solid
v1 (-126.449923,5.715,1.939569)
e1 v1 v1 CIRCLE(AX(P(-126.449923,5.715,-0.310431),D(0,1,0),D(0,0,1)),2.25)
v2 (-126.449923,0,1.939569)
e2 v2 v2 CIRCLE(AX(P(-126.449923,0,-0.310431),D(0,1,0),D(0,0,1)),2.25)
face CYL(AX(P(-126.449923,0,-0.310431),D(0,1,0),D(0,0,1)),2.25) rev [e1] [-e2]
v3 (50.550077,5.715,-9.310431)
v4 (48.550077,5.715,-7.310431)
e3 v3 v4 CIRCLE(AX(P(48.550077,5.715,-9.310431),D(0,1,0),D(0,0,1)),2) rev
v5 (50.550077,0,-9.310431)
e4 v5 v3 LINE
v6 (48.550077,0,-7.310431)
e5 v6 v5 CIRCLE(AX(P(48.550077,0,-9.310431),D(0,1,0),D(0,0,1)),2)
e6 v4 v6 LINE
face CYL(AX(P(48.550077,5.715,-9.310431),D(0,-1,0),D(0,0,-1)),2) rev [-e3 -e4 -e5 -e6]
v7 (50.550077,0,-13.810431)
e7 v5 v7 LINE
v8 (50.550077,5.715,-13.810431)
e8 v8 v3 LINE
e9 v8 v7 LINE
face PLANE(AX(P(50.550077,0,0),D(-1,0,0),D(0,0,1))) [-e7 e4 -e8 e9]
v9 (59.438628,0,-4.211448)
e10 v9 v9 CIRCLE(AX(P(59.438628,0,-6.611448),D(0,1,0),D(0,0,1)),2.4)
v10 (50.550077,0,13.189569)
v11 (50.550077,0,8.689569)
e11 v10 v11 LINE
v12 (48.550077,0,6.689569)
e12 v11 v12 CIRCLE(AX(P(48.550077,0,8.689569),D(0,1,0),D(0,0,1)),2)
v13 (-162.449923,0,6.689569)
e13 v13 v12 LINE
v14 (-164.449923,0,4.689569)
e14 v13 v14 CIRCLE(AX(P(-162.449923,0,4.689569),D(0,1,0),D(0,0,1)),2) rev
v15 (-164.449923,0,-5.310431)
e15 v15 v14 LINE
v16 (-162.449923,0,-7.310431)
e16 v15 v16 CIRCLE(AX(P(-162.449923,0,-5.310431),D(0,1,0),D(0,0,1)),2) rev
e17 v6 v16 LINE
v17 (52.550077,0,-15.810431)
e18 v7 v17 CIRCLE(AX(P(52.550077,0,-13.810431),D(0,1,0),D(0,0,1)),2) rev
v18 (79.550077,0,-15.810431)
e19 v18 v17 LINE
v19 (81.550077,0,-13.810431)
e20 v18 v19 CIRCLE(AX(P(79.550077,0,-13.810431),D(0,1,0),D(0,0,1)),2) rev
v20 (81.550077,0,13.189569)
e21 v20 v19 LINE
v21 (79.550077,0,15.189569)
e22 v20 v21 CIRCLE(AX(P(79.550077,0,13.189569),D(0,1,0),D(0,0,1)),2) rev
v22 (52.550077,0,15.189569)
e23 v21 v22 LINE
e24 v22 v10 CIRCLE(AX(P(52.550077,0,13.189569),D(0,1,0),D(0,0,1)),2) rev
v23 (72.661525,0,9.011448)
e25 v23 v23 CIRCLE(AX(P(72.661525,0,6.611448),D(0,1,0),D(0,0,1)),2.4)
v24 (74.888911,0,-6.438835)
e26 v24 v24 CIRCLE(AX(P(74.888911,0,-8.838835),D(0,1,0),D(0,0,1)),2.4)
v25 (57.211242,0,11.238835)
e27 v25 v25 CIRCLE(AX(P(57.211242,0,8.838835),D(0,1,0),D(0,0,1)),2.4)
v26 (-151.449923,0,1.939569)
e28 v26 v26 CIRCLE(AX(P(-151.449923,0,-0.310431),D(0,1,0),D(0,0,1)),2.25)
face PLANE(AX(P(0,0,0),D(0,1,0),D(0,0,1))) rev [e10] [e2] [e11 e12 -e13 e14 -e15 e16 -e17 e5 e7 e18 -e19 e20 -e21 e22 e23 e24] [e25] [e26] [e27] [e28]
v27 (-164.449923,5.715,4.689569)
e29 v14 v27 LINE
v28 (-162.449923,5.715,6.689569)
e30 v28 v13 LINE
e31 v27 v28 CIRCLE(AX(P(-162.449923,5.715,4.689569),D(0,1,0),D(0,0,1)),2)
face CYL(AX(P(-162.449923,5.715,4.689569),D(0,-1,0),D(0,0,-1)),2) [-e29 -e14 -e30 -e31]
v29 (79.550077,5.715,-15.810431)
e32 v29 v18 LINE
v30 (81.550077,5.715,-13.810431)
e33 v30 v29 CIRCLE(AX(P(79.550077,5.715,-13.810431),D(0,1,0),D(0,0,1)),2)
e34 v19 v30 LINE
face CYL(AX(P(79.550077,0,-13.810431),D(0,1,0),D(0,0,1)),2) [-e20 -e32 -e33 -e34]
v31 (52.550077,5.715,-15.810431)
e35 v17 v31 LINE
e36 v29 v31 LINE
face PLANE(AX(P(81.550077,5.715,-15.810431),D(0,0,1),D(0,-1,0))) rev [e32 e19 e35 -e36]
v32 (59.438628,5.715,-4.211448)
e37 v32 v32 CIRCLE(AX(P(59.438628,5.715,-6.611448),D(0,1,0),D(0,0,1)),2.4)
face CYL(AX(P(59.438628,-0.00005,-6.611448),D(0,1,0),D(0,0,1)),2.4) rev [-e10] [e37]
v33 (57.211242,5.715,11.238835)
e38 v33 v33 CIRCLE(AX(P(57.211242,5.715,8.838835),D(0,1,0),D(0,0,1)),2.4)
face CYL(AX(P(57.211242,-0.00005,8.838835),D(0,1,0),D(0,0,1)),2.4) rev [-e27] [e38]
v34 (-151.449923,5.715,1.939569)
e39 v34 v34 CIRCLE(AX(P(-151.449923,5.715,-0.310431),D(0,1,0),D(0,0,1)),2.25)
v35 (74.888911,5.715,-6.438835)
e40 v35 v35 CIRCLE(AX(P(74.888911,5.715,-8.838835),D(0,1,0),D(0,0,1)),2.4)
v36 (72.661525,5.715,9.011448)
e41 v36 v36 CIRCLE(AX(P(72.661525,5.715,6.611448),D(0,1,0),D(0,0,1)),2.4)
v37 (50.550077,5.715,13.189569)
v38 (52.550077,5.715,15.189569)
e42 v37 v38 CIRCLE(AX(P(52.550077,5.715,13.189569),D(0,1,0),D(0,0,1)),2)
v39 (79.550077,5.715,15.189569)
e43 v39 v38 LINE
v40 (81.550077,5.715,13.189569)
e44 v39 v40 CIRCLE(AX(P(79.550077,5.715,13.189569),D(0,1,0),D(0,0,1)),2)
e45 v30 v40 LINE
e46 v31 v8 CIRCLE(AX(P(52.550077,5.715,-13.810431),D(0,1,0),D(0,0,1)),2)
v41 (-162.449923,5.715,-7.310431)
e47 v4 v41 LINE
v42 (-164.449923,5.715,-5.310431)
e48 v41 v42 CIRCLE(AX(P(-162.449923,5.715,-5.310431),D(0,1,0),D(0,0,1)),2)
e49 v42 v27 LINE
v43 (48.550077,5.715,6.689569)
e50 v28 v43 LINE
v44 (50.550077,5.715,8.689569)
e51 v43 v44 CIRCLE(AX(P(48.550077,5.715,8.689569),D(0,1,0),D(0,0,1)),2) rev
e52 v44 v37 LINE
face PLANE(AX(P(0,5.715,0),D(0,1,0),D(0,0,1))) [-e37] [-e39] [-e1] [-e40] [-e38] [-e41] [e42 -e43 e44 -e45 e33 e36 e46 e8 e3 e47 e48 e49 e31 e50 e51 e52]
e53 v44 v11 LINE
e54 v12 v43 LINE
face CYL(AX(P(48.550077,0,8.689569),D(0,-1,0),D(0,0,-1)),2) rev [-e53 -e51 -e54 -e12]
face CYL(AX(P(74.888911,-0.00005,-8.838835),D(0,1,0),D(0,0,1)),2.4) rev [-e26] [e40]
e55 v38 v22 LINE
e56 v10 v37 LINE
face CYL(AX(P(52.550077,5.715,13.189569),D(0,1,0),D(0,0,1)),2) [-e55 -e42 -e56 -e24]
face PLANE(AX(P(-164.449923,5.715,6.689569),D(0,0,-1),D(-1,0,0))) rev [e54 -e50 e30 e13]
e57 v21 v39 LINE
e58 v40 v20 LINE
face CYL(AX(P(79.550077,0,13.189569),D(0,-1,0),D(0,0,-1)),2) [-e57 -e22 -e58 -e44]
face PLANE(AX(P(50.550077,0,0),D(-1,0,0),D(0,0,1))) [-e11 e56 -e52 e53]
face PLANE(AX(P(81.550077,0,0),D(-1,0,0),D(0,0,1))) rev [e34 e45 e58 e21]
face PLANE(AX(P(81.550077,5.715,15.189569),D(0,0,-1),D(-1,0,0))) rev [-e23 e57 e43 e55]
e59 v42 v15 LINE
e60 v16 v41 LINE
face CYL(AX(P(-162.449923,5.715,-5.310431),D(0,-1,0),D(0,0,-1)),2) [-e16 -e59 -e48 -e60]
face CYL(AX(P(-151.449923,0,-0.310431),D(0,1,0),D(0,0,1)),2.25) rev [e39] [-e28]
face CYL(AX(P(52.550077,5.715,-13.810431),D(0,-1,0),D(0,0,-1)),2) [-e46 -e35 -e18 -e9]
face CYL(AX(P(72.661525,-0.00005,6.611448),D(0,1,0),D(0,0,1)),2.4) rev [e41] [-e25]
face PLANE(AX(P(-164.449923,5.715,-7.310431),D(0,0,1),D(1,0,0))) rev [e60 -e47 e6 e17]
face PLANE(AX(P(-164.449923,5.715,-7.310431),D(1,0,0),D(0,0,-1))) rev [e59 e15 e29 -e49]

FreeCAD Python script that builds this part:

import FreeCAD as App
import Part
import Sketcher

V = App.Vector
Q = App.Units.Quantity


def edges_at(feature, points):
    """Names of the edges that pass closest to the given points."""
    edges = feature.Shape.Edges
    near = lambda p: min(range(len(edges)), key=lambda i: edges[i].distToShape(Part.Vertex(*p))[0])
    return sorted({f"Edge{near(p) + 1}" for p in points})


def add_polygon(sketch, points):
    """Adds a closed chain of lines whose ends are joined by coincident constraints."""
    first, n = sketch.GeometryCount, len(points)
    for a, b in zip(points, points[1:] + points[:1]):
        sketch.addGeometry(Part.LineSegment(App.Vector(*a, 0), App.Vector(*b, 0)), False)
    for i in range(n):
        sketch.addConstraint(Sketcher.Constraint("Coincident", first + i, 2, first + (i + 1) % n, 1))

doc = App.newDocument("Part")
body = doc.addObject("PartDesign::Body", "Body")

sketch1 = body.newObject("Sketcher::SketchObject", "Sketch")
sketch1.AttachmentSupport = (doc.getObject("XZ_Plane"), [""])
sketch1.MapMode = "FlatFace"
add_polygon(sketch1, [(-164, -7), (-164, 7), (51, 7), (51, -7)])
sketch1.addConstraint([
    Sketcher.Constraint("Vertical", 0),
    Sketcher.Constraint("Horizontal", 1),
    Sketcher.Constraint("Vertical", 2),
    Sketcher.Constraint("Horizontal", 3),
    Sketcher.Constraint("DistanceX", 1, 1, 1, 2, Q("215 mm")),
    Sketcher.Constraint("DistanceY", 0, 1, 0, 2, Q("14 mm")),
    Sketcher.Constraint("DistanceY", -1, 1, 0, 2, Q("6.689569 mm")),
    Sketcher.Constraint("DistanceX", 0, 2, -1, 1, Q("164.449923 mm")),
])
pad1 = body.newObject("PartDesign::Pad", "Pad")
pad1.Profile = sketch1
pad1.Length = 5.715
pad1.Reversed = True

sketch2 = body.newObject("Sketcher::SketchObject", "Sketch001")
sketch2.AttachmentSupport = (doc.getObject("XZ_Plane"), [""])
sketch2.MapMode = "FlatFace"
sketch2.AttachmentOffset = App.Placement(V(0, 0, -5.715), App.Rotation())
sketch2.addGeometry([
    Part.Circle(V(-151.4, -0.3, 0), V(0, 0, 1), 2.2),
    Part.Circle(V(-126.4, -0.3, 0), V(0, 0, 1), 2.2),
], False)
sketch2.addConstraint([
    Sketcher.Constraint("Equal", 0, 1),
    Sketcher.Constraint("Horizontal", 0, 3, 1, 3),
    Sketcher.Constraint("Diameter", 0, Q("4.5 mm")),
    Sketcher.Constraint("DistanceX", 0, 3, 1, 3, Q("25 mm")),
    Sketcher.Constraint("DistanceY", 0, 3, -1, 1, Q("0.310431 mm")),
    Sketcher.Constraint("DistanceX", 0, 3, -1, 1, Q("151.449923 mm")),
])
pocket1 = body.newObject("PartDesign::Pocket", "Pocket")
pocket1.Profile = sketch2
pocket1.Type = "ThroughAll"
pocket1.Reversed = True

sketch3 = body.newObject("Sketcher::SketchObject", "Sketch002")
sketch3.AttachmentSupport = (doc.getObject("YZ_Plane"), [""])
sketch3.MapMode = "FlatFace"
sketch3.AttachmentOffset = App.Placement(V(0, 0, 50.550077), App.Rotation())
add_polygon(sketch3, [(6, 15), (0, 15), (0, -16), (6, -16)])
sketch3.addConstraint([
    Sketcher.Constraint("Horizontal", 0),
    Sketcher.Constraint("Vertical", 1),
    Sketcher.Constraint("Horizontal", 2),
    Sketcher.Constraint("Vertical", 3),
    Sketcher.Constraint("PointOnObject", 0, 2, -2),
    Sketcher.Constraint("DistanceY", 1, 2, 1, 1, Q("31 mm")),
    Sketcher.Constraint("DistanceX", 0, 2, 0, 1, Q("5.715 mm")),
    Sketcher.Constraint("DistanceY", -1, 1, 0, 2, Q("15.189569 mm")),
])
pad2 = body.newObject("PartDesign::Pad", "Pad001")
pad2.Profile = sketch3
pad2.Length = 31

sketch4 = body.newObject("Sketcher::SketchObject", "Sketch003")
sketch4.AttachmentSupport = (doc.getObject("XZ_Plane"), [""])
sketch4.MapMode = "FlatFace"
sketch4.AttachmentOffset = App.Placement(V(0, 0, -5.715), App.Rotation())
sketch4.addGeometry([
    Part.Circle(V(57.2, 8.8, 0), V(0, 0, 1), 2.4),
    Part.Circle(V(59.4, -6.6, 0), V(0, 0, 1), 2.4),
    Part.Circle(V(74.9, -8.8, 0), V(0, 0, 1), 2.4),
    Part.Circle(V(72.7, 6.6, 0), V(0, 0, 1), 2.4),
], False)
sketch4.addConstraint([
    Sketcher.Constraint("Equal", 0, 1),
    Sketcher.Constraint("Equal", 1, 2),
    Sketcher.Constraint("Equal", 2, 3),
    Sketcher.Constraint("Diameter", 0, Q("4.8 mm")),
    Sketcher.Constraint("DistanceX", -1, 1, 0, 3, Q("57.211242 mm")),
    Sketcher.Constraint("DistanceX", -1, 1, 1, 3, Q("59.438628 mm")),
    Sketcher.Constraint("DistanceY", 1, 3, -1, 1, Q("6.611448 mm")),
    Sketcher.Constraint("DistanceX", -1, 1, 2, 3, Q("74.888911 mm")),
    Sketcher.Constraint("DistanceY", -1, 1, 3, 3, Q("6.611448 mm")),
    Sketcher.Constraint("DistanceY", 2, 3, 0, 3, Q("17.67767 mm")),
    Sketcher.Constraint("DistanceY", -1, 1, 0, 3, Q("8.838835 mm")),
    Sketcher.Constraint("DistanceX", -1, 1, 3, 3, Q("72.661525 mm")),
])
pocket2 = body.newObject("PartDesign::Pocket", "Pocket001")
pocket2.Profile = sketch4
pocket2.Type = "ThroughAll"
pocket2.Reversed = True
doc.recompute()

fillet = body.newObject("PartDesign::Fillet", "Fillet")
fillet.Base = (pocket2, edges_at(pocket2, [
    (-164.45, 2.857, -7.31),
    (-164.45, 2.857, 6.69),
    (50.55, 2.857, -7.31),
    (50.55, 2.857, 6.69),
    (50.55, 2.857, -15.81),
    (81.55, 2.857, -15.81),
    (81.55, 2.857, 15.19),
    (50.55, 2.857, 15.19),
]))
fillet.Radius = 2

doc.recompute()
